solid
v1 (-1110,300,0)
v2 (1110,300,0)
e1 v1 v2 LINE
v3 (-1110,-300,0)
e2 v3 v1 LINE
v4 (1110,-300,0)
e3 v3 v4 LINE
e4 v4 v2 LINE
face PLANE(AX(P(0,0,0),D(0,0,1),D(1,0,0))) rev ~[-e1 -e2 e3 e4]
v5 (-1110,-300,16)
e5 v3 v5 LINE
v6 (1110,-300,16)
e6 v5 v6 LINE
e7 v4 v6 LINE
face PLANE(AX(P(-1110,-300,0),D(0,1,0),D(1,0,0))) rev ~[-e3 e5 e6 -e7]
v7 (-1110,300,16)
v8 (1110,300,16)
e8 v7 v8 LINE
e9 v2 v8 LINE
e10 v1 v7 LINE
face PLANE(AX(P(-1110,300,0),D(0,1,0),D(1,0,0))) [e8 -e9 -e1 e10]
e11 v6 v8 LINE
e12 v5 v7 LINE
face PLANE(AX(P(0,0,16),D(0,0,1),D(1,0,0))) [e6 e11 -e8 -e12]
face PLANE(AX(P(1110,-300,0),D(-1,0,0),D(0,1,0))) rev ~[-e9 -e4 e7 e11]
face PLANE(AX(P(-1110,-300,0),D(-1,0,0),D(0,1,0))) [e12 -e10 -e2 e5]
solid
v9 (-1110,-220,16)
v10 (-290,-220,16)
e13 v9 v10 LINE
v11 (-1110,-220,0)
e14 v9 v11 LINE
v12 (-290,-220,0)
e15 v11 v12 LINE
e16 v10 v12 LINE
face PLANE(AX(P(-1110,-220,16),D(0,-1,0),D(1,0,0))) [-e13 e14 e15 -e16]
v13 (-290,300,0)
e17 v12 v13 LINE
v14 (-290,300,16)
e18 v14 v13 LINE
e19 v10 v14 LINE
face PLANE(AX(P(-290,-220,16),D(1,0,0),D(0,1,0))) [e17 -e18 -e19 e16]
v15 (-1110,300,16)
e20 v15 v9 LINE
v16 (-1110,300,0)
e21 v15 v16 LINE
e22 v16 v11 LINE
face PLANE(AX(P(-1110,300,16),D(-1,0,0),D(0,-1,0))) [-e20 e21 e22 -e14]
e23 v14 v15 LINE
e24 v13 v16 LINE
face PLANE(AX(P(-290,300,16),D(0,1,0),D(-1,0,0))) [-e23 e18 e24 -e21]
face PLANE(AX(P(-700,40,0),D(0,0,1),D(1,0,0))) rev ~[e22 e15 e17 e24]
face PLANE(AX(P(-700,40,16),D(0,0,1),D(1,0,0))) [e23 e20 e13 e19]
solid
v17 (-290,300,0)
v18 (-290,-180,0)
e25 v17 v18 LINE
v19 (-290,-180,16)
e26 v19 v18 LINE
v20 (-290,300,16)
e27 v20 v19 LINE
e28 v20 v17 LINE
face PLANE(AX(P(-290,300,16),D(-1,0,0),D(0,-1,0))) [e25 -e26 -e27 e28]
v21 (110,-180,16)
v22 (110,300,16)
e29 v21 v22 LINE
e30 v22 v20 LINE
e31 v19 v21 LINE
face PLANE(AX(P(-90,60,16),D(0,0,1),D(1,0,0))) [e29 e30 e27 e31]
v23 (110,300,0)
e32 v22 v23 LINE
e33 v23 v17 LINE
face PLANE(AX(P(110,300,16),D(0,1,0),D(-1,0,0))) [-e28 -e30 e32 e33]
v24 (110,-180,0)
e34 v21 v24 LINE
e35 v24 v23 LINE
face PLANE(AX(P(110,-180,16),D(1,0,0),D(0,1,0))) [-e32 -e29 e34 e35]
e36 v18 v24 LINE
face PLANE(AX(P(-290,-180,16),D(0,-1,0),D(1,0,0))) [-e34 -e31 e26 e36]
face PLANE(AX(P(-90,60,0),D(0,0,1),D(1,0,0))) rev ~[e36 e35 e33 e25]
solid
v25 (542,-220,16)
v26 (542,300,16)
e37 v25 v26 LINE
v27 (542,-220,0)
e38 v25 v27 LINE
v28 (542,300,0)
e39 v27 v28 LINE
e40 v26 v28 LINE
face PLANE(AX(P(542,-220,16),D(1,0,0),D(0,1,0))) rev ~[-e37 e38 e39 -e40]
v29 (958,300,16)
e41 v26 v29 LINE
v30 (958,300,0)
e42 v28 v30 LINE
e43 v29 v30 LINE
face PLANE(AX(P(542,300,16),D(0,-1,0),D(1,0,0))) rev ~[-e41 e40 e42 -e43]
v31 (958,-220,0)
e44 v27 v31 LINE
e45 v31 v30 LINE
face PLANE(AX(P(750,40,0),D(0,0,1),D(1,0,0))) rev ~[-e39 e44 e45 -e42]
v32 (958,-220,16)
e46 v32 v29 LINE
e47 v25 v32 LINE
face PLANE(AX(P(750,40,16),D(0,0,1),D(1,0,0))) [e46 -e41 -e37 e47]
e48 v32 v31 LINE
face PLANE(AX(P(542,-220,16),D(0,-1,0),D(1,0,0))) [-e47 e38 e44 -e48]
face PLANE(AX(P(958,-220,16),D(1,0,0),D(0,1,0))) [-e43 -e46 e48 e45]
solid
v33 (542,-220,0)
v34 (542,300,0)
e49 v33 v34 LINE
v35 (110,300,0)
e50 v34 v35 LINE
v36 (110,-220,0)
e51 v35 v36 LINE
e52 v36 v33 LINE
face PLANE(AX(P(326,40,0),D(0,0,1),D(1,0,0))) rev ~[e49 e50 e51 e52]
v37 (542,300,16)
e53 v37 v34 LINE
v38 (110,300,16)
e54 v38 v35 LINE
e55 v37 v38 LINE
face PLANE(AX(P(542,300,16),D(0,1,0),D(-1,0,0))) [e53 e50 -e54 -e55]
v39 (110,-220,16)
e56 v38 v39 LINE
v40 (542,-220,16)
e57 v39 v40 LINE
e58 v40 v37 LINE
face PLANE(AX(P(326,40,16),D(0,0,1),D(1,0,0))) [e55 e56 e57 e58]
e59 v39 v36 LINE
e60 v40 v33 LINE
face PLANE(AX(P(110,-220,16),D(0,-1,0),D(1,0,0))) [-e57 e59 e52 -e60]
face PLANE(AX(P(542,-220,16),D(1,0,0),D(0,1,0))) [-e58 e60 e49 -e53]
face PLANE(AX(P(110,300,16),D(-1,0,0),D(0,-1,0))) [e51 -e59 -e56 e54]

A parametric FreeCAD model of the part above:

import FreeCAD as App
import Part
import Sketcher
from FreeCAD import Vector


def add_polygon(sketch, points):
    """Adds a closed chain of lines whose ends are joined by coincident constraints."""
    first, n = sketch.GeometryCount, len(points)
    for a, b in zip(points, points[1:] + points[:1]):
        sketch.addGeometry(Part.LineSegment(App.Vector(*a, 0), App.Vector(*b, 0)), False)
    for i in range(n):
        sketch.addConstraint(Sketcher.Constraint("Coincident", first + i, 2, first + (i + 1) % n, 1))

doc = App.newDocument("Part")
body = doc.addObject("PartDesign::Body", "Body")

# Sketch on XY plane
sketch1 = doc.addObject("Sketcher::SketchObject", "Sketch")
body.addObject(sketch1)
sketch1.AttachmentSupport = (doc.XY_Plane, [""])
sketch1.MapMode = "FlatFace"
add_polygon(sketch1, [(-1110, 300), (-1110, -300), (1110, -300), (1110, 300)])  # lines 0-3
sketch1.addConstraint([
    Sketcher.Constraint("Vertical", 0),
    Sketcher.Constraint("Horizontal", 1),
    Sketcher.Constraint("Vertical", 2),
    Sketcher.Constraint("Horizontal", 3),
    Sketcher.Constraint("Symmetric", 0, 2, 2, 2, -1, 1),
    Sketcher.Constraint("DistanceX", 1, 1, 1, 2, 2220.0),
    Sketcher.Constraint("DistanceY", 0, 2, 0, 1, 600.0),
])
pad1 = doc.addObject("PartDesign::Pad", "Pad")
body.addObject(pad1)
pad1.Profile = sketch1
pad1.Length = 16
body2 = doc.addObject("PartDesign::Body", "Body001")

# Sketch on XY plane
sketch2 = doc.addObject("Sketcher::SketchObject", "Sketch001")
body2.addObject(sketch2)
sketch2.AttachmentSupport = (doc.getObject("XY_Plane001"), [""])
sketch2.MapMode = "FlatFace"
sketch2.AttachmentOffset = App.Placement(Vector(0, 0, 16), App.Rotation())
add_polygon(sketch2, [(-290, 300), (-1110, 300), (-1110, -220), (-290, -220)])  # lines 0-3
sketch2.addConstraint([
    Sketcher.Constraint("Horizontal", 0),
    Sketcher.Constraint("Vertical", 1),
    Sketcher.Constraint("Horizontal", 2),
    Sketcher.Constraint("Vertical", 3),
    Sketcher.Constraint("DistanceX", 0, 2, 0, 1, 820.0),
    Sketcher.Constraint("DistanceY", 1, 2, 1, 1, 520.0),
    Sketcher.Constraint("DistanceX", 0, 2, -1, 1, 1110.0),
    Sketcher.Constraint("DistanceY", -1, 1, 0, 2, 300.0),
])
pad2 = doc.addObject("PartDesign::Pad", "Pad001")
body2.addObject(pad2)
pad2.Profile = sketch2
pad2.Length = 16
pad2.Reversed = True
body3 = doc.addObject("PartDesign::Body", "Body002")

# Sketch on XY plane
sketch3 = doc.addObject("Sketcher::SketchObject", "Sketch002")
body3.addObject(sketch3)
sketch3.AttachmentSupport = (doc.getObject("XY_Plane002"), [""])
sketch3.MapMode = "FlatFace"
sketch3.AttachmentOffset = App.Placement(Vector(0, 0, 16), App.Rotation())
add_polygon(sketch3, [(110, 300), (-290, 300), (-290, -180), (110, -180)])  # lines 0-3
sketch3.addConstraint([
    Sketcher.Constraint("Horizontal", 0),
    Sketcher.Constraint("Vertical", 1),
    Sketcher.Constraint("Horizontal", 2),
    Sketcher.Constraint("Vertical", 3),
    Sketcher.Constraint("DistanceX", 0, 2, 0, 1, 400.0),
    Sketcher.Constraint("DistanceY", 1, 2, 1, 1, 480.0),
    Sketcher.Constraint("DistanceX", 0, 2, -1, 1, 290.0),
    Sketcher.Constraint("DistanceY", -1, 1, 0, 2, 300.0),
])
pad3 = doc.addObject("PartDesign::Pad", "Pad002")
body3.addObject(pad3)
pad3.Profile = sketch3
pad3.Length = 16
pad3.Reversed = True
body4 = doc.addObject("PartDesign::Body", "Body003")

# Sketch on XY plane
sketch4 = doc.addObject("Sketcher::SketchObject", "Sketch003")
body4.addObject(sketch4)
sketch4.AttachmentSupport = (doc.getObject("XY_Plane003"), [""])
sketch4.MapMode = "FlatFace"
sketch4.AttachmentOffset = App.Placement(Vector(0, 0, 16), App.Rotation())
add_polygon(sketch4, [(542, 300), (110, 300), (110, -220), (542, -220)])  # lines 0-3
sketch4.addConstraint([
    Sketcher.Constraint("Horizontal", 0),
    Sketcher.Constraint("Vertical", 1),
    Sketcher.Constraint("Horizontal", 2),
    Sketcher.Constraint("Vertical", 3),
    Sketcher.Constraint("DistanceX", 0, 2, 0, 1, 432.0),
    Sketcher.Constraint("DistanceY", 1, 2, 1, 1, 520.0),
    Sketcher.Constraint("DistanceX", -1, 1, 0, 2, 110.0),
    Sketcher.Constraint("DistanceY", -1, 1, 0, 2, 300.0),
])
pad4 = doc.addObject("PartDesign::Pad", "Pad003")
body4.addObject(pad4)
pad4.Profile = sketch4
pad4.Length = 16
pad4.Reversed = True
body5 = doc.addObject("PartDesign::Body", "Body004")

# Sketch on XY plane
sketch5 = doc.addObject("Sketcher::SketchObject", "Sketch004")
body5.addObject(sketch5)
sketch5.AttachmentSupport = (doc.getObject("XY_Plane004"), [""])
sketch5.MapMode = "FlatFace"
sketch5.AttachmentOffset = App.Placement(Vector(0, 0, 16), App.Rotation())
add_polygon(sketch5, [(542, 300), (542, -220), (958, -220), (958, 300)])  # lines 0-3
sketch5.addConstraint([
    Sketcher.Constraint("Vertical", 0),
    Sketcher.Constraint("Horizontal", 1),
    Sketcher.Constraint("Vertical", 2),
    Sketcher.Constraint("Horizontal", 3),
    Sketcher.Constraint("DistanceX", 1, 1, 1, 2, 416.0),
    Sketcher.Constraint("DistanceY", 0, 2, 0, 1, 520.0),
    Sketcher.Constraint("DistanceX", -1, 1, 0, 2, 542.0),
    Sketcher.Constraint("DistanceY", 0, 2, -1, 1, 220.0),
])
pad5 = doc.addObject("PartDesign::Pad", "Pad004")
body5.addObject(pad5)
pad5.Profile = sketch5
pad5.Length = 16
pad5.Reversed = True

doc.recompute()
